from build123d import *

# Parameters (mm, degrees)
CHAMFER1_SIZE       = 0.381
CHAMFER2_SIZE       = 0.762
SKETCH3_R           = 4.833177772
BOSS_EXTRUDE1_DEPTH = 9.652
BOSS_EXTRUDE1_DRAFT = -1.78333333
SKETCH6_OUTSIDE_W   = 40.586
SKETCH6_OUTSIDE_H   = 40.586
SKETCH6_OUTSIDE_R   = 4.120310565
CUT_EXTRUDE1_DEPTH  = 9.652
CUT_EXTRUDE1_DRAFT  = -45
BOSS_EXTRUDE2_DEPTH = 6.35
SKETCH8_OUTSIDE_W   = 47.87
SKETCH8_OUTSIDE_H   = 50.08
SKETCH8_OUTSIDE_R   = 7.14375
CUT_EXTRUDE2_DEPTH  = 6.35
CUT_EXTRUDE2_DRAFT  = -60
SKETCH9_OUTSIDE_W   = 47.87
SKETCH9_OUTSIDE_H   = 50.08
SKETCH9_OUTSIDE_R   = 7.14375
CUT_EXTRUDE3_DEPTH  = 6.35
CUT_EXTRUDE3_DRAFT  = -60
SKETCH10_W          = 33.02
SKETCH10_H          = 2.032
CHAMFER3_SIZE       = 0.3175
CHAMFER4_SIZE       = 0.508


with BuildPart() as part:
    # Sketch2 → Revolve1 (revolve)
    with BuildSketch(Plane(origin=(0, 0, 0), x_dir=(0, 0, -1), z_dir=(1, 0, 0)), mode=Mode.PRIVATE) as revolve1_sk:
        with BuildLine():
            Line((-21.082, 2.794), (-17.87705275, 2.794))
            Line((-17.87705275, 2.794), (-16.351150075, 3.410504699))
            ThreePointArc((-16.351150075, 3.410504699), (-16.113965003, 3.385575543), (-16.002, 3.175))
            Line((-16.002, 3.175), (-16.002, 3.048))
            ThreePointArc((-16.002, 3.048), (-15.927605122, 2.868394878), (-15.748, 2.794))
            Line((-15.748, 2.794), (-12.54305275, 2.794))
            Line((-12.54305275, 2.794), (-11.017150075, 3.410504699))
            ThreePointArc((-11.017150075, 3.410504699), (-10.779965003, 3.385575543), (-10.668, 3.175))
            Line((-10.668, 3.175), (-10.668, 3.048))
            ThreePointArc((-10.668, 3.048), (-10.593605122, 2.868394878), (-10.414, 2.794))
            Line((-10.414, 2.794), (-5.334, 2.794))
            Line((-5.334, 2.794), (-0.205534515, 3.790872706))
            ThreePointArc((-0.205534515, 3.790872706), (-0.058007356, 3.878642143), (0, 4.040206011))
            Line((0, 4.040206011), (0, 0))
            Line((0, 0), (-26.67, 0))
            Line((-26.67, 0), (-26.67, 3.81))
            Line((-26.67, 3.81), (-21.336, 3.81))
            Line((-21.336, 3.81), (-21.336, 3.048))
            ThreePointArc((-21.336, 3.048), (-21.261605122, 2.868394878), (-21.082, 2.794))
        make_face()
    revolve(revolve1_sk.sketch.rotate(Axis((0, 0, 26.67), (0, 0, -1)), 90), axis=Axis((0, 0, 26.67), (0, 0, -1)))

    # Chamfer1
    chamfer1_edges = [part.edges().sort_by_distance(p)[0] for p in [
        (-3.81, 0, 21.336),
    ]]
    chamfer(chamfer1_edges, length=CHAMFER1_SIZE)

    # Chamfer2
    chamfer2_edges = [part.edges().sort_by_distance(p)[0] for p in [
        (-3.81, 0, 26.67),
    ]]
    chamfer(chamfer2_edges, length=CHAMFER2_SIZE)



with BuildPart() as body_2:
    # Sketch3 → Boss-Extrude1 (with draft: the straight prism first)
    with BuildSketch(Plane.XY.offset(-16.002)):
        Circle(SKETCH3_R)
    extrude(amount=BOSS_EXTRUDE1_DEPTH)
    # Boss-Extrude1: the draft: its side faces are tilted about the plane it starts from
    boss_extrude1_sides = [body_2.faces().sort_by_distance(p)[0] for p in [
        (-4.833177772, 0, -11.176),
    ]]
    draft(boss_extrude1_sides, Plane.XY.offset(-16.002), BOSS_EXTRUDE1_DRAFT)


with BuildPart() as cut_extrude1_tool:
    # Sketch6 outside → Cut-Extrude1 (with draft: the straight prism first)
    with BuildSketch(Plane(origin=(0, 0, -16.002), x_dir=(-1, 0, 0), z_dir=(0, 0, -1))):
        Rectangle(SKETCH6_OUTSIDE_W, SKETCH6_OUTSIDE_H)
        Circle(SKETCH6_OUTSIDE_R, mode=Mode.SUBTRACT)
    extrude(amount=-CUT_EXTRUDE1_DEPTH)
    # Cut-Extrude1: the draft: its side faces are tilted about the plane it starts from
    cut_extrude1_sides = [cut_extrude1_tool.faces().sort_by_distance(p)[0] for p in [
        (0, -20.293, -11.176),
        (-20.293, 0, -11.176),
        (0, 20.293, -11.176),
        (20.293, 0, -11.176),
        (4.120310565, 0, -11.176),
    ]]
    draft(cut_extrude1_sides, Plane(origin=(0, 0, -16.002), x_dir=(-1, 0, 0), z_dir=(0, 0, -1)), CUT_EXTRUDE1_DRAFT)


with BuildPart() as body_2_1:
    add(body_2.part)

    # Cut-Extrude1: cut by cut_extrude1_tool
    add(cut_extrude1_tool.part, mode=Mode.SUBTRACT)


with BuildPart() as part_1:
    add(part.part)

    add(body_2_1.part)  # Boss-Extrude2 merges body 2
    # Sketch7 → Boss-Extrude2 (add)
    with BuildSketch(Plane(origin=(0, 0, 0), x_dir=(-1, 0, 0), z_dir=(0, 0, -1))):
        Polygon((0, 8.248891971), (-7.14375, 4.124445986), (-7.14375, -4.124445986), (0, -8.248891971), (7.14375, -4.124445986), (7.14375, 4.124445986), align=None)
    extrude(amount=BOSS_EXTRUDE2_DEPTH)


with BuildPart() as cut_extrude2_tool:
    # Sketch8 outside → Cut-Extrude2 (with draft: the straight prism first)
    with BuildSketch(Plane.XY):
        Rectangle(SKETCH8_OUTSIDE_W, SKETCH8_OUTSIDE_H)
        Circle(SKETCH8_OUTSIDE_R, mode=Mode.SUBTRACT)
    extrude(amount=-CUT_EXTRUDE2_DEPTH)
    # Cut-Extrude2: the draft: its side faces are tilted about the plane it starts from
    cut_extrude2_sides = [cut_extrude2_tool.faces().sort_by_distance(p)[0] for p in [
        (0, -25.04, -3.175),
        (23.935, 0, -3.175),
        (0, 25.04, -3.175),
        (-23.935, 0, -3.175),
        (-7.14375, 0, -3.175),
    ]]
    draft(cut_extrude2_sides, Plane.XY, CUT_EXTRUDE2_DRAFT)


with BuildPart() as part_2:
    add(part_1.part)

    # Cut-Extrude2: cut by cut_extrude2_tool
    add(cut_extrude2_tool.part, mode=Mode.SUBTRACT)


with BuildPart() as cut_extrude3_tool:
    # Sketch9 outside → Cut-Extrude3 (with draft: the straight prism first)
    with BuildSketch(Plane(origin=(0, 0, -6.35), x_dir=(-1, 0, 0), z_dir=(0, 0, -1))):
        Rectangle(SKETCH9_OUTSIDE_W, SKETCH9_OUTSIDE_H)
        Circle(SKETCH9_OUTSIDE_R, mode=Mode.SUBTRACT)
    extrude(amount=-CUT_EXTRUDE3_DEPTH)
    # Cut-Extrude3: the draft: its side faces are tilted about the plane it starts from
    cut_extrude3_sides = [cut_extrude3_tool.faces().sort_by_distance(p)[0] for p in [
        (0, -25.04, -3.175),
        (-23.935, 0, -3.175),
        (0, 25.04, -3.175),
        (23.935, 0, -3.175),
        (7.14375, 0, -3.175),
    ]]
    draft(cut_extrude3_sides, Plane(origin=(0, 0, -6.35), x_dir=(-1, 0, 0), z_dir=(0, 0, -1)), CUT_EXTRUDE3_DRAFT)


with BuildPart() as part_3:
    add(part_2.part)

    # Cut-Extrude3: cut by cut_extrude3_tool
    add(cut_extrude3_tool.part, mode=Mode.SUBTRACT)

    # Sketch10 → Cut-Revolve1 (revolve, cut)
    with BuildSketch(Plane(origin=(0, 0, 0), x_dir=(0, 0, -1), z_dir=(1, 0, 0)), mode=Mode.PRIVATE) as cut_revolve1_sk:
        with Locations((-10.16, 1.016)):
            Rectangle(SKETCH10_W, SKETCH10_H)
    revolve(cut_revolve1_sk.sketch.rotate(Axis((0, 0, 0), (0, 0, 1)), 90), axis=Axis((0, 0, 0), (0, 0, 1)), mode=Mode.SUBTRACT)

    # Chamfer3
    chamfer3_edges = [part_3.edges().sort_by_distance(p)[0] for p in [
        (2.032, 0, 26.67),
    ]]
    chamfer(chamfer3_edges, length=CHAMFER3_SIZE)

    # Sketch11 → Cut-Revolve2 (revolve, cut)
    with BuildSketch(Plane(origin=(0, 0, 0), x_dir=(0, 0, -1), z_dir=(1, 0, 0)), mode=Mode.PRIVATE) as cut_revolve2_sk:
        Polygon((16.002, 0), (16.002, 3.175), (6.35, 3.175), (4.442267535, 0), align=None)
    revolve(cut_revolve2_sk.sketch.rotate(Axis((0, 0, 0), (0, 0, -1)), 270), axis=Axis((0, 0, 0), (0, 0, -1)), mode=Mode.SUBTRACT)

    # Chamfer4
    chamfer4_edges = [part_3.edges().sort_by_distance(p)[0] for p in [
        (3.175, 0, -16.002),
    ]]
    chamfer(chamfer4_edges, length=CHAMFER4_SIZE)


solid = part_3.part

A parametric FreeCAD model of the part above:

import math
import FreeCAD as App
import Part
import Sketcher

V = App.Vector
Q = App.Units.Quantity


def edges_at(feature, points):
    """Names of the edges that pass closest to the given points."""
    edges = feature.Shape.Edges
    near = lambda p: min(range(len(edges)), key=lambda i: edges[i].distToShape(Part.Vertex(*p))[0])
    return sorted({f"Edge{near(p) + 1}" for p in points})


def faces_at(feature, points):
    """Names of the faces that lie closest to the given points."""
    faces = feature.Shape.Faces
    near = lambda p: min(range(len(faces)), key=lambda i: faces[i].distToShape(Part.Vertex(*p))[0])
    return sorted({f"Face{near(p) + 1}" for p in points})


def add_polygon(sketch, points):
    """Adds a closed chain of lines whose ends are joined by coincident constraints."""
    first, n = sketch.GeometryCount, len(points)
    for a, b in zip(points, points[1:] + points[:1]):
        sketch.addGeometry(Part.LineSegment(App.Vector(*a, 0), App.Vector(*b, 0)), False)
    for i in range(n):
        sketch.addConstraint(Sketcher.Constraint("Coincident", first + i, 2, first + (i + 1) % n, 1))

doc = App.newDocument("Part")
body = doc.addObject("PartDesign::Body", "Body")

# Sketch on YZ plane
sketch1 = body.newObject("Sketcher::SketchObject", "Sketch")
sketch1.AttachmentSupport = (doc.getObject("YZ_Plane"), [""])
sketch1.MapMode = "FlatFace"
sketch1.addGeometry([
    Part.LineSegment(V(2.79, 17.88, 0), V(2.79, 21.08, 0)),  # 0
    Part.ArcOfCircle(Part.Circle(V(3.05, 21.08, 0), V(0, 0, 1), 0.25), math.radians(90), math.radians(180)),  # 1
    Part.LineSegment(V(3.05, 21.34, 0), V(3.81, 21.34, 0)),  # 2
    Part.LineSegment(V(3.81, 21.34, 0), V(3.81, 26.67, 0)),  # 3
    Part.LineSegment(V(3.81, 26.67, 0), V(0, 26.67, 0)),  # 4
    Part.LineSegment(V(0, 26.67, 0), V(0, 0, 0)),  # 5
    Part.LineSegment(V(0, 0, 0), V(4.04, 0, 0)),  # 6
    Part.ArcOfCircle(Part.Circle(V(4.04, 0.25, 0), V(0, 0, 1), 0.25), math.radians(-169), math.radians(-90)),  # 7
    Part.LineSegment(V(3.79, 0.21, 0), V(2.79, 5.33, 0)),  # 8
    Part.LineSegment(V(2.79, 5.33, 0), V(2.79, 10.41, 0)),  # 9
    Part.ArcOfCircle(Part.Circle(V(3.05, 10.41, 0), V(0, 0, 1), 0.25), math.radians(90), math.radians(180)),  # 10
    Part.LineSegment(V(3.05, 10.67, 0), V(3.17, 10.67, 0)),  # 11
    Part.ArcOfCircle(Part.Circle(V(3.17, 10.92, 0), V(0, 0, 1), 0.25), math.radians(-90), math.radians(22)),  # 12
    Part.LineSegment(V(3.41, 11.02, 0), V(2.79, 12.54, 0)),  # 13
    Part.LineSegment(V(2.79, 12.54, 0), V(2.79, 15.75, 0)),  # 14
    Part.ArcOfCircle(Part.Circle(V(3.05, 15.75, 0), V(0, 0, 1), 0.25), math.radians(90), math.radians(180)),  # 15
    Part.LineSegment(V(3.05, 16, 0), V(3.17, 16, 0)),  # 16
    Part.ArcOfCircle(Part.Circle(V(3.17, 16.26, 0), V(0, 0, 1), 0.25), math.radians(-90), math.radians(22)),  # 17
    Part.LineSegment(V(3.41, 16.35, 0), V(2.79, 17.88, 0)),  # 18
], False)
sketch1.addConstraint([
    Sketcher.Constraint("Tangent", 0, 2, 1, 2),
    Sketcher.Constraint("Tangent", 1, 1, 2, 1),
    Sketcher.Constraint("Coincident", 2, 2, 3, 1),
    Sketcher.Constraint("Coincident", 3, 2, 4, 1),
    Sketcher.Constraint("Coincident", 4, 2, 5, 1),
    Sketcher.Constraint("Coincident", 5, 2, 6, 1),
    Sketcher.Constraint("Tangent", 6, 2, 7, 2),
    Sketcher.Constraint("Tangent", 7, 1, 8, 1),
    Sketcher.Constraint("Coincident", 8, 2, 9, 1),
    Sketcher.Constraint("Tangent", 9, 2, 10, 2),
    Sketcher.Constraint("Tangent", 10, 1, 11, 1),
    Sketcher.Constraint("Tangent", 11, 2, 12, 1),
    Sketcher.Constraint("Tangent", 12, 2, 13, 1),
    Sketcher.Constraint("Coincident", 13, 2, 14, 1),
    Sketcher.Constraint("Tangent", 14, 2, 15, 2),
    Sketcher.Constraint("Tangent", 15, 1, 16, 1),
    Sketcher.Constraint("Tangent", 16, 2, 17, 1),
    Sketcher.Constraint("Tangent", 17, 2, 18, 1),
    Sketcher.Constraint("Coincident", 18, 2, 0, 1),
    Sketcher.Constraint("Vertical", 0),
    Sketcher.Constraint("Horizontal", 2),
    Sketcher.Constraint("Vertical", 3),
    Sketcher.Constraint("Horizontal", 4),
    Sketcher.Constraint("Vertical", 5),
    Sketcher.Constraint("Horizontal", 6),
    Sketcher.Constraint("Vertical", 9),
    Sketcher.Constraint("Horizontal", 11),
    Sketcher.Constraint("Vertical", 14),
    Sketcher.Constraint("Horizontal", 16),
    Sketcher.Constraint("Coincident", 5, 2, -1, 1),
    Sketcher.Constraint("Equal", 1, 7),
    Sketcher.Constraint("Equal", 7, 10),
    Sketcher.Constraint("Equal", 10, 12),
    Sketcher.Constraint("Equal", 12, 15),
    Sketcher.Constraint("Equal", 15, 17),
    Sketcher.Constraint("Parallel", 13, 18),
    Sketcher.Constraint("Vertical", 1, 3, 10, 3),
    Sketcher.Constraint("Vertical", 10, 3, 15, 3),
    Sketcher.Constraint("Vertical", 12, 3, 17, 3),
    Sketcher.Constraint("Equal", 0, 14),
    Sketcher.Constraint("Radius", 1, Q("0.01 in")),
    Sketcher.Constraint("DistanceY", 9, 1, 9, 2, Q("0.2 in")),
    Sketcher.Constraint("Angle", 8, Q("101 deg")),
    Sketcher.Constraint("Angle", 13, Q("112 deg")),
    Sketcher.Constraint("DistanceX", 2, 1, 2, 2, Q("0.03 in")),
    Sketcher.Constraint("DistanceX", 4, 2, 4, 1, Q("0.15 in")),
    Sketcher.Constraint("DistanceY", 3, 1, 3, 2, Q("0.21 in")),
    Sketcher.Constraint("DistanceY", 5, 2, 5, 1, Q("1.05 in")),
    Sketcher.Constraint("DistanceY", 7, 3, 10, 3, Q("0.4 in")),
    Sketcher.Constraint("DistanceX", 11, 1, 11, 2, Q("0.005 in")),
])
revolution = body.newObject("PartDesign::Revolution", "Revolution")
revolution.Profile = sketch1
revolution.ReferenceAxis = (sketch1, ["V_Axis"])
revolution.Angle = 360
doc.recompute()

chamfer = body.newObject("PartDesign::Chamfer", "Chamfer")
chamfer.Base = (revolution, edges_at(revolution, [(-3.81, 0, 21.336)]))
chamfer.Size = Q("0.015 in")
doc.recompute()

chamfer2 = body.newObject("PartDesign::Chamfer", "Chamfer001")
chamfer2.Base = (chamfer, edges_at(chamfer, [(-3.81, 0, 26.67)]))
chamfer2.Size = Q("0.03 in")
body2 = doc.addObject("PartDesign::Body", "Body001")

# Sketch on XY plane
sketch2 = body2.newObject("Sketcher::SketchObject", "Sketch001")
sketch2.AttachmentSupport = (doc.getObject("XY_Plane001"), [""])
sketch2.MapMode = "FlatFace"
sketch2.AttachmentOffset = App.Placement(V(0, 0, -0.63 * 25.4), App.Rotation())
sketch2.addGeometry(Part.Circle(V(0, 0, 0), V(0, 0, 1), 4.8), False)
sketch2.addConstraint([
    Sketcher.Constraint("Coincident", 0, 3, -1, 1),
    Sketcher.Constraint("Diameter", 0, 9.666356),
])
pad1 = body2.newObject("PartDesign::Pad", "Pad")
pad1.Profile = sketch2
pad1.Length = Q("0.38 in")
doc.recompute()

datumplane = body2.newObject("PartDesign::Plane", "DatumPlane")
datumplane.AttachmentSupport = (doc.getObject("XY_Plane001"), [""])
datumplane.MapMode = "FlatFace"
datumplane.AttachmentOffset = App.Placement(V(0, 0, -0.63 * 25.4), App.Rotation())
draft = body2.newObject("PartDesign::Draft", "Draft")
draft.Base = (pad1, faces_at(pad1, [(-4.833, 0, -11.176)]))
draft.NeutralPlane = (datumplane, [""])
draft.Angle = 1.783333
draft.Reversed = True
body3 = doc.addObject("PartDesign::Body", "Body002")

# Sketch on XY plane
sketch3 = body3.newObject("Sketcher::SketchObject", "Sketch002")
sketch3.AttachmentSupport = (doc.getObject("XY_Plane002"), [""])
sketch3.MapMode = "FlatFace"
sketch3.AttachmentOffset = App.Placement(V(0, 0, -0.63 * 25.4), App.Rotation())
add_polygon(sketch3, [(20.3, 20.3), (20.3, -20.3), (-20.3, -20.3), (-20.3, 20.3)])  # lines 0-3
sketch3.addGeometry(Part.Circle(V(0, 0, 0), V(0, 0, 1), 4.1), False)  # 4
sketch3.addConstraint([
    Sketcher.Constraint("Vertical", 0),
    Sketcher.Constraint("Horizontal", 1),
    Sketcher.Constraint("Vertical", 2),
    Sketcher.Constraint("Horizontal", 3),
    Sketcher.Constraint("Coincident", 4, 3, -1, 1),
    Sketcher.Constraint("Symmetric", 0, 2, 2, 2, -1, 1),
    Sketcher.Constraint("Equal", 3, 0),
    Sketcher.Constraint("Diameter", 4, 8.240621),
    Sketcher.Constraint("DistanceX", 1, 2, 1, 1, 40.586),
])
pad2 = body3.newObject("PartDesign::Pad", "Pad001")
pad2.Profile = sketch3
pad2.Length = Q("0.38 in")
doc.recompute()

datumplane2 = body3.newObject("PartDesign::Plane", "DatumPlane001")
datumplane2.AttachmentSupport = (doc.getObject("XY_Plane002"), [""])
datumplane2.MapMode = "FlatFace"
datumplane2.AttachmentOffset = App.Placement(V(0, 0, -0.63 * 25.4), App.Rotation())
draft2 = body3.newObject("PartDesign::Draft", "Draft001")
draft2.Base = (pad2, faces_at(pad2, [
    (0, -20.293, -11.176),
    (-20.293, 0, -11.176),
    (0, 20.293, -11.176),
    (20.293, 0, -11.176),
    (4.12, 0, -11.176),
]))
draft2.NeutralPlane = (datumplane2, [""])
draft2.Angle = 45
draft2.Reversed = False
doc.recompute()

boolean = body2.newObject("PartDesign::Boolean", "Boolean")
boolean.Type = "Cut"
boolean.addObjects([body3])
body.AllowCompound = True
doc.recompute()

boolean2 = body.newObject("PartDesign::Boolean", "Boolean001")
boolean2.Type = "Fuse"
boolean2.addObjects([body2])

# Sketch on XY plane
sketch4 = body.newObject("Sketcher::SketchObject", "Sketch003")
sketch4.AttachmentSupport = (doc.getObject("XY_Plane"), [""])
sketch4.MapMode = "FlatFace"
add_polygon(sketch4, [(0, 8), (7, 4), (7, -4), (0, -8), (-7, -4), (-7, 4)])  # lines 0-5
sketch4.addConstraint([
    Sketcher.Constraint("Vertical", 1),
    Sketcher.Constraint("Vertical", 4),
    Sketcher.Constraint("Symmetric", 0, 2, 3, 2, -1, 1),
    Sketcher.Constraint("Symmetric", 2, 2, 5, 2, -1, 1),
    Sketcher.Constraint("PointOnObject", 2, 2, -2),
    Sketcher.Constraint("Parallel", 2, 5),
    Sketcher.Constraint("Horizontal", 1, 2, 3, 2),
    Sketcher.Constraint("Angle", 0, Q("-30 deg")),
    Sketcher.Constraint("DistanceX", -1, 1, 0, 2, Q("0.28125 in")),
    Sketcher.Constraint("DistanceY", 1, 2, 1, 1, 8.248892),
])
pad3 = body.newObject("PartDesign::Pad", "Pad002")
pad3.Profile = sketch4
pad3.Length = Q("0.25 in")
pad3.Reversed = True
body4 = doc.addObject("PartDesign::Body", "Body003")

# Sketch on XY plane
sketch5 = body4.newObject("Sketcher::SketchObject", "Sketch004")
sketch5.AttachmentSupport = (doc.getObject("XY_Plane003"), [""])
sketch5.MapMode = "FlatFace"
add_polygon(sketch5, [(-24, 25), (-24, -25), (24, -25), (24, 25)])  # lines 0-3
sketch5.addGeometry(Part.Circle(V(0, 0, 0), V(0, 0, 1), 7), False)  # 4
sketch5.addConstraint([
    Sketcher.Constraint("Vertical", 0),
    Sketcher.Constraint("Horizontal", 1),
    Sketcher.Constraint("Vertical", 2),
    Sketcher.Constraint("Horizontal", 3),
    Sketcher.Constraint("Coincident", 4, 3, -1, 1),
    Sketcher.Constraint("Symmetric", 0, 2, 2, 2, -1, 1),
    Sketcher.Constraint("Diameter", 4, Q("0.5625 in")),
    Sketcher.Constraint("DistanceX", 1, 1, 1, 2, 47.87),
    Sketcher.Constraint("DistanceY", 0, 2, 0, 1, 50.08),
])
pad4 = body4.newObject("PartDesign::Pad", "Pad003")
pad4.Profile = sketch5
pad4.Length = Q("0.25 in")
pad4.Reversed = True
doc.recompute()

draft3 = body4.newObject("PartDesign::Draft", "Draft002")
draft3.Base = (pad4, faces_at(pad4, [
    (0, -25.04, -3.175),
    (23.935, 0, -3.175),
    (0, 25.04, -3.175),
    (-23.935, 0, -3.175),
    (-7.144, 0, -3.175),
]))
draft3.NeutralPlane = (doc.getObject("XY_Plane003"), [""])
draft3.Angle = 60
draft3.Reversed = True
doc.recompute()

boolean3 = body.newObject("PartDesign::Boolean", "Boolean002")
boolean3.Type = "Cut"
boolean3.addObjects([body4])
body5 = doc.addObject("PartDesign::Body", "Body004")

# Sketch on XY plane
sketch6 = body5.newObject("Sketcher::SketchObject", "Sketch005")
sketch6.AttachmentSupport = (doc.getObject("XY_Plane004"), [""])
sketch6.MapMode = "FlatFace"
sketch6.AttachmentOffset = App.Placement(V(0, 0, -0.25 * 25.4), App.Rotation())
add_polygon(sketch6, [(24, 25), (24, -25), (-24, -25), (-24, 25)])  # lines 0-3
sketch6.addGeometry(Part.Circle(V(0, 0, 0), V(0, 0, 1), 7), False)  # 4
sketch6.addConstraint([
    Sketcher.Constraint("Vertical", 0),
    Sketcher.Constraint("Horizontal", 1),
    Sketcher.Constraint("Vertical", 2),
    Sketcher.Constraint("Horizontal", 3),
    Sketcher.Constraint("Coincident", 4, 3, -1, 1),
    Sketcher.Constraint("Symmetric", 0, 2, 2, 2, -1, 1),
    Sketcher.Constraint("Diameter", 4, Q("0.5625 in")),
    Sketcher.Constraint("DistanceX", 1, 2, 1, 1, 47.87),
    Sketcher.Constraint("DistanceY", 0, 2, 0, 1, 50.08),
])
pad5 = body5.newObject("PartDesign::Pad", "Pad004")
pad5.Profile = sketch6
pad5.Length = Q("0.25 in")
doc.recompute()

datumplane3 = body5.newObject("PartDesign::Plane", "DatumPlane002")
datumplane3.AttachmentSupport = (doc.getObject("XY_Plane004"), [""])
datumplane3.MapMode = "FlatFace"
datumplane3.AttachmentOffset = App.Placement(V(0, 0, -0.25 * 25.4), App.Rotation())
draft4 = body5.newObject("PartDesign::Draft", "Draft003")
draft4.Base = (pad5, faces_at(pad5, [
    (0, -25.04, -3.175),
    (-23.935, 0, -3.175),
    (0, 25.04, -3.175),
    (23.935, 0, -3.175),
    (7.144, 0, -3.175),
]))
draft4.NeutralPlane = (datumplane3, [""])
draft4.Angle = 60
draft4.Reversed = False
doc.recompute()

boolean4 = body.newObject("PartDesign::Boolean", "Boolean003")
boolean4.Type = "Cut"
boolean4.addObjects([body5])

# Sketch on YZ plane
sketch7 = body.newObject("Sketcher::SketchObject", "Sketch006")
sketch7.AttachmentSupport = (doc.getObject("YZ_Plane"), [""])
sketch7.MapMode = "FlatFace"
add_polygon(sketch7, [(2, 26.7), (0, 26.7), (0, -6.3), (2, -6.3)])  # lines 0-3
sketch7.addConstraint([
    Sketcher.Constraint("Horizontal", 0),
    Sketcher.Constraint("Vertical", 1),
    Sketcher.Constraint("Horizontal", 2),
    Sketcher.Constraint("Vertical", 3),
    Sketcher.Constraint("PointOnObject", 0, 2, -2),
    Sketcher.Constraint("DistanceY", 1, 2, 1, 1, Q("1.3 in")),
    Sketcher.Constraint("DistanceX", 0, 2, 0, 1, Q("0.08 in")),
    Sketcher.Constraint("DistanceY", -1, 1, 0, 2, Q("1.05 in")),
])
groove = body.newObject("PartDesign::Groove", "Groove")
groove.Profile = sketch7
groove.ReferenceAxis = (sketch7, ["V_Axis"])
groove.Angle = 360
doc.recompute()

chamfer3 = body.newObject("PartDesign::Chamfer", "Chamfer002")
chamfer3.Base = (groove, edges_at(groove, [(2.032, 0, 26.67)]))
chamfer3.Size = Q("0.0125 in")

# Sketch on YZ plane
sketch8 = body.newObject("Sketcher::SketchObject", "Sketch007")
sketch8.AttachmentSupport = (doc.getObject("YZ_Plane"), [""])
sketch8.MapMode = "FlatFace"
add_polygon(sketch8, [(0, -16), (3.2, -16), (3.2, -6.3), (0, -4.4)])  # lines 0-3
sketch8.addConstraint([
    Sketcher.Constraint("Horizontal", 0),
    Sketcher.Constraint("Vertical", 1),
    Sketcher.Constraint("Vertical", 3),
    Sketcher.Constraint("PointOnObject", 2, 2, -2),
    Sketcher.Constraint("Angle", 2, Q("149 deg")),
    Sketcher.Constraint("DistanceY", 1, 1, 1, 2, Q("0.38 in")),
    Sketcher.Constraint("DistanceX", 0, 1, 0, 2, Q("0.125 in")),
    Sketcher.Constraint("DistanceY", 0, 2, -1, 1, Q("0.63 in")),
])
groove2 = body.newObject("PartDesign::Groove", "Groove001")
groove2.Profile = sketch8
groove2.ReferenceAxis = (sketch8, ["V_Axis"])
groove2.Angle = 360
doc.recompute()

chamfer4 = body.newObject("PartDesign::Chamfer", "Chamfer003")
chamfer4.Base = (groove2, edges_at(groove2, [(3.175, 0, -16.002)]))
chamfer4.Size = Q("0.02 in")

doc.recompute()
